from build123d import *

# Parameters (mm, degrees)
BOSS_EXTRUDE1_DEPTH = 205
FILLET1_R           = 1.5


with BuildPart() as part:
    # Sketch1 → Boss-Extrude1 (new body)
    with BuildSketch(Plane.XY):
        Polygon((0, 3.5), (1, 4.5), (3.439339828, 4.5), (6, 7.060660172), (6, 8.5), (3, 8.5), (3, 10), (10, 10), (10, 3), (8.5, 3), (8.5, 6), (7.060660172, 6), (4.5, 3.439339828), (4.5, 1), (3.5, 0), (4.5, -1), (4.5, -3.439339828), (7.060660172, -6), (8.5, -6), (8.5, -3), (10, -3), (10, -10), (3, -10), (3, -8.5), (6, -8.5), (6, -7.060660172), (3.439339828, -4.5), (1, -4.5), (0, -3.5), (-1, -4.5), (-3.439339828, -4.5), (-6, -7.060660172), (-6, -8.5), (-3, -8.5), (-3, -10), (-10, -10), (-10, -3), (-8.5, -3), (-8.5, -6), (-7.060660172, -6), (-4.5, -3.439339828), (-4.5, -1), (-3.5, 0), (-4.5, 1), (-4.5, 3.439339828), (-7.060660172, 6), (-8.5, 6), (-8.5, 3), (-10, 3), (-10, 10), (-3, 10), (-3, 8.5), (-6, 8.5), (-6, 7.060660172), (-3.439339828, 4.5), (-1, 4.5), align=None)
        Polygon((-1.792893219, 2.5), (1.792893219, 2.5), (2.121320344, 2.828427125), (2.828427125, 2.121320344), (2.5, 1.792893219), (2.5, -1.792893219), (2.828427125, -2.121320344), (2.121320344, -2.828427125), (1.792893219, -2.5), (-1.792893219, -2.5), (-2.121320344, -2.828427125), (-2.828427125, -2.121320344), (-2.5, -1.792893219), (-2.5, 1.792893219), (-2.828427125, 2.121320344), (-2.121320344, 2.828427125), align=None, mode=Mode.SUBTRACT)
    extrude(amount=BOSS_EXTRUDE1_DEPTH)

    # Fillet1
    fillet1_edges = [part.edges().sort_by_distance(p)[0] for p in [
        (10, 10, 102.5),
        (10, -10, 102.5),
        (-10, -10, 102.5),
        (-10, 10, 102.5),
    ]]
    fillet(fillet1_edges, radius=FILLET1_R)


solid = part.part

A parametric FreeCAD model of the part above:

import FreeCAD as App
import Part
import Sketcher
from FreeCAD import Vector


def edges_at(feature, points):
    """Names of the edges that pass closest to the given points."""
    edges = feature.Shape.Edges
    near = lambda p: min(range(len(edges)), key=lambda i: edges[i].distToShape(Part.Vertex(*p))[0])
    return sorted({f"Edge{near(p) + 1}" for p in points})


def add_polygon(sketch, points):
    """Adds a closed chain of lines whose ends are joined by coincident constraints."""
    first, n = sketch.GeometryCount, len(points)
    for a, b in zip(points, points[1:] + points[:1]):
        sketch.addGeometry(Part.LineSegment(App.Vector(*a, 0), App.Vector(*b, 0)), False)
    for i in range(n):
        sketch.addConstraint(Sketcher.Constraint("Coincident", first + i, 2, first + (i + 1) % n, 1))

doc = App.newDocument("Part")
body = doc.addObject("PartDesign::Body", "Body")

# Sketch on XY plane
sketch1 = doc.addObject("Sketcher::SketchObject", "Sketch")
body.addObject(sketch1)
sketch1.AttachmentSupport = (doc.XY_Plane, [""])
sketch1.MapMode = "FlatFace"
add_polygon(sketch1, [(1, 4.5), (0, 3.5), (-1, 4.5), (-3.44, 4.5), (-6, 7.06), (-6, 8.5), (-3, 8.5), (-3, 10), (-10, 10), (-10, 3), (-8.5, 3), (-8.5, 6), (-7.06, 6), (-4.5, 3.44), (-4.5, 1), (-3.5, 0), (-4.5, -1), (-4.5, -3.44), (-7.06, -6), (-8.5, -6), (-8.5, -3), (-10, -3), (-10, -10), (-3, -10), (-3, -8.5), (-6, -8.5), (-6, -7.06), (-3.44, -4.5), (-1, -4.5), (0, -3.5), (1, -4.5), (3.44, -4.5), (6, -7.06), (6, -8.5), (3, -8.5), (3, -10), (10, -10), (10, -3), (8.5, -3), (8.5, -6), (7.06, -6), (4.5, -3.44), (4.5, -1), (3.5, 0), (4.5, 1), (4.5, 3.44), (7.06, 6), (8.5, 6), (8.5, 3), (10, 3), (10, 10), (3, 10), (3, 8.5), (6, 8.5), (6, 7.06), (3.44, 4.5)])  # lines 0-55
add_polygon(sketch1, [(-1.79, 2.5), (1.79, 2.5), (2.12, 2.83), (2.83, 2.12), (2.5, 1.79), (2.5, -1.79), (2.83, -2.12), (2.12, -2.83), (1.79, -2.5), (-1.79, -2.5), (-2.12, -2.83), (-2.83, -2.12), (-2.5, -1.79), (-2.5, 1.79), (-2.83, 2.12), (-2.12, 2.83)])  # lines 56-71
sketch1.addConstraint(Sketcher.Constraint("Horizontal", 2))
sketch1.addConstraint(Sketcher.Constraint("Vertical", 4))
sketch1.addConstraint(Sketcher.Constraint("Horizontal", 5))
sketch1.addConstraint(Sketcher.Constraint("Vertical", 6))
sketch1.addConstraint(Sketcher.Constraint("Horizontal", 7))
sketch1.addConstraint(Sketcher.Constraint("Vertical", 8))
sketch1.addConstraint(Sketcher.Constraint("Horizontal", 9))
sketch1.addConstraint(Sketcher.Constraint("Vertical", 10))
sketch1.addConstraint(Sketcher.Constraint("Horizontal", 11))
sketch1.addConstraint(Sketcher.Constraint("Vertical", 13))
sketch1.addConstraint(Sketcher.Constraint("Vertical", 16))
sketch1.addConstraint(Sketcher.Constraint("Horizontal", 18))
sketch1.addConstraint(Sketcher.Constraint("Vertical", 19))
sketch1.addConstraint(Sketcher.Constraint("Horizontal", 20))
sketch1.addConstraint(Sketcher.Constraint("Vertical", 21))
sketch1.addConstraint(Sketcher.Constraint("Horizontal", 22))
sketch1.addConstraint(Sketcher.Constraint("Vertical", 23))
sketch1.addConstraint(Sketcher.Constraint("Horizontal", 24))
sketch1.addConstraint(Sketcher.Constraint("Vertical", 25))
sketch1.addConstraint(Sketcher.Constraint("Horizontal", 27))
sketch1.addConstraint(Sketcher.Constraint("Horizontal", 30))
sketch1.addConstraint(Sketcher.Constraint("Vertical", 32))
sketch1.addConstraint(Sketcher.Constraint("Horizontal", 33))
sketch1.addConstraint(Sketcher.Constraint("Vertical", 34))
sketch1.addConstraint(Sketcher.Constraint("Horizontal", 35))
sketch1.addConstraint(Sketcher.Constraint("Vertical", 36))
sketch1.addConstraint(Sketcher.Constraint("Horizontal", 37))
sketch1.addConstraint(Sketcher.Constraint("Vertical", 38))
sketch1.addConstraint(Sketcher.Constraint("Horizontal", 39))
sketch1.addConstraint(Sketcher.Constraint("Vertical", 41))
sketch1.addConstraint(Sketcher.Constraint("Vertical", 44))
sketch1.addConstraint(Sketcher.Constraint("Horizontal", 46))
sketch1.addConstraint(Sketcher.Constraint("Vertical", 47))
sketch1.addConstraint(Sketcher.Constraint("Horizontal", 48))
sketch1.addConstraint(Sketcher.Constraint("Vertical", 49))
sketch1.addConstraint(Sketcher.Constraint("Horizontal", 50))
sketch1.addConstraint(Sketcher.Constraint("Vertical", 51))
sketch1.addConstraint(Sketcher.Constraint("Horizontal", 52))
sketch1.addConstraint(Sketcher.Constraint("Vertical", 53))
sketch1.addConstraint(Sketcher.Constraint("Horizontal", 55))
sketch1.addConstraint(Sketcher.Constraint("Horizontal", 56))
sketch1.addConstraint(Sketcher.Constraint("Vertical", 60))
sketch1.addConstraint(Sketcher.Constraint("Horizontal", 64))
sketch1.addConstraint(Sketcher.Constraint("Vertical", 68))
sketch1.addConstraint(Sketcher.Constraint("Symmetric", 0, 2, 28, 2, -1, 1))
sketch1.addConstraint(Sketcher.Constraint("Symmetric", 1, 2, 29, 2, -1, 1))
sketch1.addConstraint(Sketcher.Constraint("Symmetric", 3, 2, 31, 2, -1, 1))
sketch1.addConstraint(Sketcher.Constraint("Symmetric", 5, 2, 33, 2, -1, 1))
sketch1.addConstraint(Sketcher.Constraint("Symmetric", 7, 2, 35, 2, -1, 1))
sketch1.addConstraint(Sketcher.Constraint("Symmetric", 9, 2, 37, 2, -1, 1))
sketch1.addConstraint(Sketcher.Constraint("Symmetric", 11, 2, 39, 2, -1, 1))
sketch1.addConstraint(Sketcher.Constraint("Symmetric", 12, 2, 40, 2, -1, 1))
sketch1.addConstraint(Sketcher.Constraint("Symmetric", 14, 2, 42, 2, -1, 1))
sketch1.addConstraint(Sketcher.Constraint("Symmetric", 15, 2, 43, 2, -1, 1))
sketch1.addConstraint(Sketcher.Constraint("Symmetric", 17, 2, 45, 2, -1, 1))
sketch1.addConstraint(Sketcher.Constraint("Symmetric", 19, 2, 47, 2, -1, 1))
sketch1.addConstraint(Sketcher.Constraint("Symmetric", 21, 2, 49, 2, -1, 1))
sketch1.addConstraint(Sketcher.Constraint("Symmetric", 23, 2, 51, 2, -1, 1))
sketch1.addConstraint(Sketcher.Constraint("Symmetric", 25, 2, 53, 2, -1, 1))
sketch1.addConstraint(Sketcher.Constraint("Symmetric", 26, 2, 54, 2, -1, 1))
sketch1.addConstraint(Sketcher.Constraint("Symmetric", 56, 2, 64, 2, -1, 1))
sketch1.addConstraint(Sketcher.Constraint("Symmetric", 57, 2, 65, 2, -1, 1))
sketch1.addConstraint(Sketcher.Constraint("Symmetric", 58, 2, 66, 2, -1, 1))
sketch1.addConstraint(Sketcher.Constraint("Symmetric", 59, 2, 67, 2, -1, 1))
sketch1.addConstraint(Sketcher.Constraint("Symmetric", 61, 2, 69, 2, -1, 1))
sketch1.addConstraint(Sketcher.Constraint("Symmetric", 62, 2, 70, 2, -1, 1))
sketch1.addConstraint(Sketcher.Constraint("Symmetric", 27, 2, 29, 2, -2))
sketch1.addConstraint(Sketcher.Constraint("Symmetric", 25, 2, 31, 2, -2))
sketch1.addConstraint(Sketcher.Constraint("Symmetric", 23, 2, 33, 2, -2))
sketch1.addConstraint(Sketcher.Constraint("Symmetric", 21, 2, 35, 2, -2))
sketch1.addConstraint(Sketcher.Constraint("Symmetric", 19, 2, 37, 2, -2))
sketch1.addConstraint(Sketcher.Constraint("Symmetric", 17, 2, 39, 2, -2))
sketch1.addConstraint(Sketcher.Constraint("Symmetric", 16, 2, 40, 2, -2))
sketch1.addConstraint(Sketcher.Constraint("Symmetric", 62, 2, 65, 2, -2))
sketch1.addConstraint(Sketcher.Constraint("Symmetric", 61, 2, 66, 2, -2))
sketch1.addConstraint(Sketcher.Constraint("PointOnObject", 0, 2, -2))
sketch1.addConstraint(Sketcher.Constraint("PointOnObject", 14, 2, -1))
sketch1.addConstraint(Sketcher.Constraint("Perpendicular", 0, 1))
sketch1.addConstraint(Sketcher.Constraint("Parallel", 1, 3))
sketch1.addConstraint(Sketcher.Constraint("Parallel", 3, 12))
sketch1.addConstraint(Sketcher.Constraint("Parallel", 12, 14))
sketch1.addConstraint(Sketcher.Constraint("Perpendicular", 14, 15))
sketch1.addConstraint(Sketcher.Constraint("Parallel", 15, 17))
sketch1.addConstraint(Sketcher.Constraint("Parallel", 17, 26))
sketch1.addConstraint(Sketcher.Constraint("Parallel", 29, 31))
sketch1.addConstraint(Sketcher.Constraint("Parallel", 40, 42))
sketch1.addConstraint(Sketcher.Constraint("Parallel", 43, 45))
sketch1.addConstraint(Sketcher.Constraint("Parallel", 54, 57))
sketch1.addConstraint(Sketcher.Constraint("Perpendicular", 57, 58))
sketch1.addConstraint(Sketcher.Constraint("Perpendicular", 58, 59))
sketch1.addConstraint(Sketcher.Constraint("Perpendicular", 59, 61))
sketch1.addConstraint(Sketcher.Constraint("Perpendicular", 62, 63))
sketch1.addConstraint(Sketcher.Constraint("Perpendicular", 67, 69))
sketch1.addConstraint(Sketcher.Constraint("Perpendicular", 70, 71))
sketch1.addConstraint(Sketcher.Constraint("Equal", 46, 4))
sketch1.addConstraint(Sketcher.Constraint("Equal", 48, 6))
sketch1.addConstraint(Sketcher.Constraint("Equal", 50, 8))
sketch1.addConstraint(Sketcher.Constraint("Equal", 52, 10))
sketch1.addConstraint(Sketcher.Constraint("Equal", 55, 13))
sketch1.addConstraint(Sketcher.Constraint("Equal", 64, 60))
sketch1.addConstraint(Sketcher.Constraint("Equal", 3, 12))
sketch1.addConstraint(Sketcher.Constraint("Equal", 1, 14))
sketch1.addConstraint(Sketcher.Constraint("Equal", 57, 59))
sketch1.addConstraint(Sketcher.Constraint("DistanceX", 5, 1, 5, 2, 3.0))
sketch1.addConstraint(Sketcher.Constraint("DistanceX", 7, 2, 7, 1, 7.0))
sketch1.addConstraint(Sketcher.Constraint("Distance", 58, 1.0))
sketch1.addConstraint(Sketcher.Constraint("DistanceX", 9, 1, 9, 2, 1.5))
sketch1.addConstraint(Sketcher.Constraint("DistanceX", 1, 2, -1, 1, 1.0))
sketch1.addConstraint(Sketcher.Constraint("DistanceX", 3, 2, -1, 1, 6.0))
sketch1.addConstraint(Sketcher.Constraint("DistanceY", -1, 1, 0, 2, 3.5))
sketch1.addConstraint(Sketcher.Constraint("DistanceY", -1, 1, 56, 2, 2.5))
sketch1.addConstraint(Sketcher.Constraint("DistanceX", 2, 2, 2, 1, 2.43934))
sketch1.addConstraint(Sketcher.Constraint("DistanceX", -1, 1, 57, 2, 2.12132))
pad1 = doc.addObject("PartDesign::Pad", "Pad")
body.addObject(pad1)
pad1.Profile = sketch1
pad1.Length = 205
doc.recompute()

fillet = doc.addObject("PartDesign::Fillet", "Fillet")
body.addObject(fillet)
fillet.Base = (pad1, edges_at(pad1, [
    (10, 10, 102.5),
    (10, -10, 102.5),
    (-10, -10, 102.5),
    (-10, 10, 102.5),
]))
fillet.Radius = 1.5

doc.recompute()
